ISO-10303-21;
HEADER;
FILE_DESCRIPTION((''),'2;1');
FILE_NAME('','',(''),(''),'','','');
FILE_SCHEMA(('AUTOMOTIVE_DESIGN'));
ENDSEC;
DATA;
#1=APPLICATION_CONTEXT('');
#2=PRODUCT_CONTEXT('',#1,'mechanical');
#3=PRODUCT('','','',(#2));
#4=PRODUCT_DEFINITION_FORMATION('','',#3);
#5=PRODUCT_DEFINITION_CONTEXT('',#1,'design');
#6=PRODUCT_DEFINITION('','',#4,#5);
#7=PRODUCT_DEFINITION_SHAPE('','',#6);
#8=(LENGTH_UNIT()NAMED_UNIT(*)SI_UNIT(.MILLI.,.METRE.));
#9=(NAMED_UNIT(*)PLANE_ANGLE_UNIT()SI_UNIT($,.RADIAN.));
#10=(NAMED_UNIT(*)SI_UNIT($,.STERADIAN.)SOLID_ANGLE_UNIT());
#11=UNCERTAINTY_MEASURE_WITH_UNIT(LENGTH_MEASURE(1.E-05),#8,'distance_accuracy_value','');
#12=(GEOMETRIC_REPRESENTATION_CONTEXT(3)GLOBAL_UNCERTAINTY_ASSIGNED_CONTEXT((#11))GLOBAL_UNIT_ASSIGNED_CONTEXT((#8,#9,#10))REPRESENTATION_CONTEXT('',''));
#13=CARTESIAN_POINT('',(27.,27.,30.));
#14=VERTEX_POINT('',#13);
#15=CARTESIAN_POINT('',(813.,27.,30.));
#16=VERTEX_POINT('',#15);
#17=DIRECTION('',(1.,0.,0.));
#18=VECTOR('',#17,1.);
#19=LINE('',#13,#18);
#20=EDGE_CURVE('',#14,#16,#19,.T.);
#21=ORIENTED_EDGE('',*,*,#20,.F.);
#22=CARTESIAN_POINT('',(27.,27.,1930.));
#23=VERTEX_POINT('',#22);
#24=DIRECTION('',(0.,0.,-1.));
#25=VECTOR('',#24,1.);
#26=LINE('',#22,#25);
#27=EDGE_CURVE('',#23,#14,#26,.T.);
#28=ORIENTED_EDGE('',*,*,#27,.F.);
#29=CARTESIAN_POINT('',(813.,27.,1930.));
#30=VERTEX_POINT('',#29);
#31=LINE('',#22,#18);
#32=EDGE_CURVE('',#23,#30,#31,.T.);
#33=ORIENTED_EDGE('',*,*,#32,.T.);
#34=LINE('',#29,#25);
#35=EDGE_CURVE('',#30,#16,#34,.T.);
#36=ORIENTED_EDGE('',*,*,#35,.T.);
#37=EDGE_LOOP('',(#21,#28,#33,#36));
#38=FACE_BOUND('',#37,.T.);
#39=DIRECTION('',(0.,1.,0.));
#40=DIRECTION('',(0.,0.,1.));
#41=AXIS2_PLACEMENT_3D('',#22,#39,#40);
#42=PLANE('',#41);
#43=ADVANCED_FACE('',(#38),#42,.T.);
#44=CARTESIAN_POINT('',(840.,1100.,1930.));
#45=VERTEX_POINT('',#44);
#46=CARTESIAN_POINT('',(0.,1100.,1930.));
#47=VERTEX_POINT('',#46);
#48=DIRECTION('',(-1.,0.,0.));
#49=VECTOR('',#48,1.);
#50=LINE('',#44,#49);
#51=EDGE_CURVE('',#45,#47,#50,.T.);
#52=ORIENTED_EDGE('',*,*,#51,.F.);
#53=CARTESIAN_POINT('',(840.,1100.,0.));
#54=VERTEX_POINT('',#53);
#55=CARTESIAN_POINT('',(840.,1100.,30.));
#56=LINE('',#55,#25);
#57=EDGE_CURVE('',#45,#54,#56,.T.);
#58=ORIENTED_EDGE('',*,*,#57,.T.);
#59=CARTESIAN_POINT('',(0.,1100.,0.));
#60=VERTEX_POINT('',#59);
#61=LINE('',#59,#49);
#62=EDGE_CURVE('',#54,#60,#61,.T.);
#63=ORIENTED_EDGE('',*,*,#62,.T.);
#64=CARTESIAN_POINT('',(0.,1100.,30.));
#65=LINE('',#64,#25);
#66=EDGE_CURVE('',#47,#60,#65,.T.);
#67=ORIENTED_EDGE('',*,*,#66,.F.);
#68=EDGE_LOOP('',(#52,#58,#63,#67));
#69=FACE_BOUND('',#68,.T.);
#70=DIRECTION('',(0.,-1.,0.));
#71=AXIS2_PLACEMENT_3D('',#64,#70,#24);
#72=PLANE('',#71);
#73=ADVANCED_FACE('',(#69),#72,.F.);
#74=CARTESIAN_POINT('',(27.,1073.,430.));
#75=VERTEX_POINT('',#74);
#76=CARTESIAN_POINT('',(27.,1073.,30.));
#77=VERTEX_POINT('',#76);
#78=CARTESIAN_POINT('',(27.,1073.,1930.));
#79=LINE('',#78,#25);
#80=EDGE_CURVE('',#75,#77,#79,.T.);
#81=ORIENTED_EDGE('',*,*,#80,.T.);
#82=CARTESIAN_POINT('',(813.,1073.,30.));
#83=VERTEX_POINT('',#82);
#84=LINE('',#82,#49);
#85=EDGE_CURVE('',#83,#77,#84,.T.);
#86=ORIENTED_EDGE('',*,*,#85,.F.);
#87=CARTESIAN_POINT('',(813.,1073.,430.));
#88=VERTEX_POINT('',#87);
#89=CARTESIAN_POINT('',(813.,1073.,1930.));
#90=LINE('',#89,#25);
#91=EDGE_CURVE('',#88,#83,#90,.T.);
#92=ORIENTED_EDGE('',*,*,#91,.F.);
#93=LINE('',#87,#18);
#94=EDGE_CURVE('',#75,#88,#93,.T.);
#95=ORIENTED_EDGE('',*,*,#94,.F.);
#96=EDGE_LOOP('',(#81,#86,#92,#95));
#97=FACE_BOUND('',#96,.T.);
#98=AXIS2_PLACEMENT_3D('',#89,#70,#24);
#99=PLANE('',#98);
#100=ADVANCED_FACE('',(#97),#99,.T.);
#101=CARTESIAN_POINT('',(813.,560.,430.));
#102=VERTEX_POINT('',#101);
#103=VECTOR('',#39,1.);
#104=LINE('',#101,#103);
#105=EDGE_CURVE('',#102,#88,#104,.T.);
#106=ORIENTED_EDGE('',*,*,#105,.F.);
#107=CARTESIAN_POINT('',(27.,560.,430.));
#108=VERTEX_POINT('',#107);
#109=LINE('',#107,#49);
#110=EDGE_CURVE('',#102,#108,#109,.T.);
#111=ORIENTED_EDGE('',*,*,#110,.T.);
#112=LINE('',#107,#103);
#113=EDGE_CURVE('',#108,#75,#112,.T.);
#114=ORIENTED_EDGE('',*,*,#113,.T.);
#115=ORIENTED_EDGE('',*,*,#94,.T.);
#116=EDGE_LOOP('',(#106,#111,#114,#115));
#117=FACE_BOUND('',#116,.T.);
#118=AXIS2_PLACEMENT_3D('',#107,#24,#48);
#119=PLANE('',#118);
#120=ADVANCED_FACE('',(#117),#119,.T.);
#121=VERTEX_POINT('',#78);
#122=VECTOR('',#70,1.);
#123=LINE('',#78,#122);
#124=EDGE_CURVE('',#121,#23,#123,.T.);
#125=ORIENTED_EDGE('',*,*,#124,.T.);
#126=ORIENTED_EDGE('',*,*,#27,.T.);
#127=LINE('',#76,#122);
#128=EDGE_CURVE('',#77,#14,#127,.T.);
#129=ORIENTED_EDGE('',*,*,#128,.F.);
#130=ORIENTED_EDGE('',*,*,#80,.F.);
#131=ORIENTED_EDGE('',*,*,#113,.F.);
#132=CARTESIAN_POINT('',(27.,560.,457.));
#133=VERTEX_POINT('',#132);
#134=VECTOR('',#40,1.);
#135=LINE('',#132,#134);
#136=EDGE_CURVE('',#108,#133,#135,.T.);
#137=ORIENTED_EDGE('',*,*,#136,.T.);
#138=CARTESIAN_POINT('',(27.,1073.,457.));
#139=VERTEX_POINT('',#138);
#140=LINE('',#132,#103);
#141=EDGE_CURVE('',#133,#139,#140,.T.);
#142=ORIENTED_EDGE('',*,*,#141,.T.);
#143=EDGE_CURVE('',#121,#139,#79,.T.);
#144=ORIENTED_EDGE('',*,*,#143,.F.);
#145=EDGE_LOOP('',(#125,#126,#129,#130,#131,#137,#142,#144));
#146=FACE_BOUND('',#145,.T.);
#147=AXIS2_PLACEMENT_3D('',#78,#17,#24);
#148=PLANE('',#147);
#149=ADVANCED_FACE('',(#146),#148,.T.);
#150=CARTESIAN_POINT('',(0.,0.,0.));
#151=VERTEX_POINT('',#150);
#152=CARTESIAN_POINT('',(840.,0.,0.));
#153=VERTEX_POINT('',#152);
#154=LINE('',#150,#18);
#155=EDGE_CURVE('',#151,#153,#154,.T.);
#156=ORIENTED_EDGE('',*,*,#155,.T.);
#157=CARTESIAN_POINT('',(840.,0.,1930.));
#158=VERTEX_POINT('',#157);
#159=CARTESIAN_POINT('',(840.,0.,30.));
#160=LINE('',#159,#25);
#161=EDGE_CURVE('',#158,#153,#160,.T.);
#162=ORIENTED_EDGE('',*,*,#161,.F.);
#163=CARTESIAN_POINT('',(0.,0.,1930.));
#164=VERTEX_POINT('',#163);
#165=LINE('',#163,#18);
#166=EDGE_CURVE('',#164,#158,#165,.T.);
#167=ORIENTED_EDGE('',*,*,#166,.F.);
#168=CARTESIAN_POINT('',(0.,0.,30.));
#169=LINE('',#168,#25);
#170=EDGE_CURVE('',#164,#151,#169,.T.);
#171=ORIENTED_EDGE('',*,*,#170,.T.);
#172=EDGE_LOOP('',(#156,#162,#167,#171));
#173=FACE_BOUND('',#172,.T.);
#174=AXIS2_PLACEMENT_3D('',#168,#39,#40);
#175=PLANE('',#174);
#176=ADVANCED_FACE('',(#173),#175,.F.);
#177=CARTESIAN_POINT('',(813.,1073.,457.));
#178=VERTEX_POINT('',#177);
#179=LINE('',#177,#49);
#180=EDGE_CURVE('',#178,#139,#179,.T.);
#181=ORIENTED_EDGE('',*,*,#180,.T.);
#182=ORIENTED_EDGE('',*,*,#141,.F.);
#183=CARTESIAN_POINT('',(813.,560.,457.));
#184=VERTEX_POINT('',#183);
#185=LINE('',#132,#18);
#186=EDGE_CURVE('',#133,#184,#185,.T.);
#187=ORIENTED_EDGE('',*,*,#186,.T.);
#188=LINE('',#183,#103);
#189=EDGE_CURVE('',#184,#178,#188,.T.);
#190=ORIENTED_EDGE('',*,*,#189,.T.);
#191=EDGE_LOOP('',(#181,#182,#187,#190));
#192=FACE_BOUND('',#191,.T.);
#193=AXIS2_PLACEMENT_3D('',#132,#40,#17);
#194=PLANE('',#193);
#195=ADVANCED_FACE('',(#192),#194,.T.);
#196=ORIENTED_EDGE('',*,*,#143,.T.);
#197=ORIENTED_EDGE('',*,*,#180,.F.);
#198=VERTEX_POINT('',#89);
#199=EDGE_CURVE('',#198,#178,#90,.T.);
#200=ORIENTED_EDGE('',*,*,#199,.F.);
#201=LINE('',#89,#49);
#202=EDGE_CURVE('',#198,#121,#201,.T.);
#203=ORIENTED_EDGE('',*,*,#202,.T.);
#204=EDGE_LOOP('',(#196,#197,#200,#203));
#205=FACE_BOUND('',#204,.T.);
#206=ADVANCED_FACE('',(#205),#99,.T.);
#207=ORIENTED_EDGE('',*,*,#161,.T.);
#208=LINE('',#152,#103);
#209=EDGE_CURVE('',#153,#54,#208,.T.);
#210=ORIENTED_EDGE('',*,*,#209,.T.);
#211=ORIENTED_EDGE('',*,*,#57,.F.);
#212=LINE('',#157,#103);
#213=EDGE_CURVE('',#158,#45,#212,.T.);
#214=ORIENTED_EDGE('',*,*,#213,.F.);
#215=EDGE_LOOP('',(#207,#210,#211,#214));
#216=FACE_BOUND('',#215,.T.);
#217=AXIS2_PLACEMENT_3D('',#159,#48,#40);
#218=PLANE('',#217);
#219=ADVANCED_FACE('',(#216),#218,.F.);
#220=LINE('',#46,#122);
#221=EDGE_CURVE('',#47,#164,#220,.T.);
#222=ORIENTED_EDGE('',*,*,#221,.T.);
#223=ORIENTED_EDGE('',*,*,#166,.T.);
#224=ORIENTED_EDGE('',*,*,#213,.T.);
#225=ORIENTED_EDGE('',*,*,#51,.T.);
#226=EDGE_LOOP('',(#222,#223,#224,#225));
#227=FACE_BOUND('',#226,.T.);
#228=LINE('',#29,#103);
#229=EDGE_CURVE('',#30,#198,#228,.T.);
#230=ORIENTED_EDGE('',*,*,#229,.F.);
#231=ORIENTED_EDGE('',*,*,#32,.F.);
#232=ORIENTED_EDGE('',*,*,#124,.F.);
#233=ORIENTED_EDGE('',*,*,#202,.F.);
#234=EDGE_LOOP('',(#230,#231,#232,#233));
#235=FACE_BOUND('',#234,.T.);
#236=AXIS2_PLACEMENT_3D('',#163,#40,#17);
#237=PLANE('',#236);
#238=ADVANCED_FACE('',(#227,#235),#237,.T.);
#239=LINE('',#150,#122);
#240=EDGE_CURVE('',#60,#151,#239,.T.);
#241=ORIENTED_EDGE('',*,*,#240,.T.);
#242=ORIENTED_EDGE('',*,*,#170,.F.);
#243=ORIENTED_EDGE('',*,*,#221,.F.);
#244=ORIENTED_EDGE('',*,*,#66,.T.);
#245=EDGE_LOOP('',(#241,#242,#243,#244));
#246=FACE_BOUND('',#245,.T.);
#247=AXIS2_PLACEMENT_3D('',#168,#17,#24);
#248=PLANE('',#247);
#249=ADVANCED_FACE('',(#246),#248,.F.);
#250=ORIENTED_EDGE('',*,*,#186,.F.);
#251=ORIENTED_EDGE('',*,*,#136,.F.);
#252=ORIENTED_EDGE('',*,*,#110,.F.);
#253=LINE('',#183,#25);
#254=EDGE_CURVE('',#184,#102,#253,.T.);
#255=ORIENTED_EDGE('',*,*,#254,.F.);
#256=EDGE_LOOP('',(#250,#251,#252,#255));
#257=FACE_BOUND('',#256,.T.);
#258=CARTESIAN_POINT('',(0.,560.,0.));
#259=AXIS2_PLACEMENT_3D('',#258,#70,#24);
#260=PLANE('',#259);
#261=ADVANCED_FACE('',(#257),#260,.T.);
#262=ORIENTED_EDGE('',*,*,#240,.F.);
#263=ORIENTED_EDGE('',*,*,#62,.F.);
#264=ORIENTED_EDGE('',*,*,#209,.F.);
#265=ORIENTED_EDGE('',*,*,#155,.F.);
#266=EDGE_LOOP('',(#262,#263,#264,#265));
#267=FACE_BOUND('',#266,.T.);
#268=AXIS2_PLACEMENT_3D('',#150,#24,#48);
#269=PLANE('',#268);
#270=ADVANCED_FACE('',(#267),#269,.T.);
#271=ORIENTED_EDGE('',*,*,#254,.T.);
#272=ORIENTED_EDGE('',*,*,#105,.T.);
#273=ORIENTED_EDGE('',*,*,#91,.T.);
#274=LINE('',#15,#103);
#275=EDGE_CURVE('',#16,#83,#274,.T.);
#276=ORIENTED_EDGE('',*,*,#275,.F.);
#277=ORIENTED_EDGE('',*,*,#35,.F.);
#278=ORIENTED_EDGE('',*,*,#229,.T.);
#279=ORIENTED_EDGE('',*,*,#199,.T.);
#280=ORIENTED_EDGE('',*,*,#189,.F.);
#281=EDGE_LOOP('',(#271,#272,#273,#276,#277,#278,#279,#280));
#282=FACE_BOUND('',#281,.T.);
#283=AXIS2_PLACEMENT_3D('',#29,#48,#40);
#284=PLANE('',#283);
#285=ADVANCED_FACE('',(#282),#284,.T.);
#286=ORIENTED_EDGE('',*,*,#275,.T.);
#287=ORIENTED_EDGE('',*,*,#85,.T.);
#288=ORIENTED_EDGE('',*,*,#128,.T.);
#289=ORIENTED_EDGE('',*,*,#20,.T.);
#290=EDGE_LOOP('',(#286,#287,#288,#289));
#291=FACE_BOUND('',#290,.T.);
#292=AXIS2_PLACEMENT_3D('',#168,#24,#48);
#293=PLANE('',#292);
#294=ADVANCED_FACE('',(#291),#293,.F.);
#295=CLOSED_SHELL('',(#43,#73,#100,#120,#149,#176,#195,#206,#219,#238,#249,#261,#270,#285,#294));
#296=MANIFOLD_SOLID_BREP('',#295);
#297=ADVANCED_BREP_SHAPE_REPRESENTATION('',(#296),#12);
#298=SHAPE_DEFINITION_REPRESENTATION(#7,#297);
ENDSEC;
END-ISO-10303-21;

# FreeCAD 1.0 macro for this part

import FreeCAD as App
import Part
import Sketcher

V = App.Vector
Q = App.Units.Quantity

doc = App.newDocument("Part")
body = doc.addObject("PartDesign::Body", "Body")

# Sketch on XY plane
sketch1 = body.newObject("Sketcher::SketchObject", "Sketch")
sketch1.AttachmentSupport = (doc.getObject("XY_Plane"), [""])
sketch1.MapMode = "FlatFace"
sketch1.addGeometry([
    Part.LineSegment(V(0, 1100, 0), V(0, 0, 0)),
    Part.LineSegment(V(0, 0, 0), V(840, 0, 0)),
    Part.LineSegment(V(840, 0, 0), V(840, 1100, 0)),
    Part.LineSegment(V(840, 1100, 0), V(0, 1100, 0)),
], False)
sketch1.addConstraint([
    Sketcher.Constraint("Coincident", 0, 2, 1, 1),
    Sketcher.Constraint("Coincident", 1, 2, 2, 1),
    Sketcher.Constraint("Coincident", 2, 2, 3, 1),
    Sketcher.Constraint("Coincident", 3, 2, 0, 1),
    Sketcher.Constraint("Vertical", 0),
    Sketcher.Constraint("Horizontal", 1),
    Sketcher.Constraint("Vertical", 2),
    Sketcher.Constraint("Horizontal", 3),
    Sketcher.Constraint("Coincident", 0, 2, -1, 1),
    Sketcher.Constraint("DistanceX", 1, 1, 1, 2, Q("840 mm")),
    Sketcher.Constraint("DistanceY", 0, 2, 0, 1, Q("1100 mm")),
])
pad1 = body.newObject("PartDesign::Pad", "Pad")
pad1.Profile = sketch1
pad1.Length = 30

# Sketch on XY plane
sketch2 = body.newObject("Sketcher::SketchObject", "Sketch001")
sketch2.AttachmentSupport = (doc.getObject("XY_Plane"), [""])
sketch2.MapMode = "FlatFace"
sketch2.AttachmentOffset = App.Placement(V(0, 0, 30), App.Rotation())
sketch2.addGeometry([
    Part.LineSegment(V(0, 1100, 0), V(0, 0, 0)),  # 0
    Part.LineSegment(V(0, 0, 0), V(840, 0, 0)),  # 1
    Part.LineSegment(V(840, 0, 0), V(840, 1100, 0)),  # 2
    Part.LineSegment(V(840, 1100, 0), V(0, 1100, 0)),  # 3
    Part.LineSegment(V(813, 27, 0), V(27, 27, 0)),  # 4
    Part.LineSegment(V(27, 27, 0), V(27, 1073, 0)),  # 5
    Part.LineSegment(V(27, 1073, 0), V(813, 1073, 0)),  # 6
    Part.LineSegment(V(813, 1073, 0), V(813, 27, 0)),  # 7
], False)
sketch2.addConstraint([
    Sketcher.Constraint("Coincident", 0, 2, 1, 1),
    Sketcher.Constraint("Coincident", 1, 2, 2, 1),
    Sketcher.Constraint("Coincident", 2, 2, 3, 1),
    Sketcher.Constraint("Coincident", 3, 2, 0, 1),
    Sketcher.Constraint("Coincident", 4, 2, 5, 1),
    Sketcher.Constraint("Coincident", 5, 2, 6, 1),
    Sketcher.Constraint("Coincident", 6, 2, 7, 1),
    Sketcher.Constraint("Coincident", 7, 2, 4, 1),
    Sketcher.Constraint("Vertical", 0),
    Sketcher.Constraint("Horizontal", 1),
    Sketcher.Constraint("Vertical", 2),
    Sketcher.Constraint("Horizontal", 3),
    Sketcher.Constraint("Horizontal", 4),
    Sketcher.Constraint("Vertical", 5),
    Sketcher.Constraint("Horizontal", 6),
    Sketcher.Constraint("Vertical", 7),
    Sketcher.Constraint("Coincident", 0, 2, -1, 1),
    Sketcher.Constraint("DistanceX", 1, 1, 1, 2, Q("840 mm")),
    Sketcher.Constraint("DistanceX", 4, 2, 4, 1, Q("786 mm")),
    Sketcher.Constraint("DistanceY", 0, 2, 0, 1, Q("1100 mm")),
    Sketcher.Constraint("DistanceY", 5, 1, 5, 2, Q("1046 mm")),
    Sketcher.Constraint("DistanceX", -1, 1, 4, 2, Q("27 mm")),
    Sketcher.Constraint("DistanceY", -1, 1, 4, 2, Q("27 mm")),
])
pad2 = body.newObject("PartDesign::Pad", "Pad001")
pad2.Profile = sketch2
pad2.Length = 1900

# Sketch on XZ plane
sketch3 = body.newObject("Sketcher::SketchObject", "Sketch002")
sketch3.AttachmentSupport = (doc.getObject("XZ_Plane"), [""])
sketch3.MapMode = "FlatFace"
sketch3.AttachmentOffset = App.Placement(V(0, 0, -1100), App.Rotation())
sketch3.addGeometry([
    Part.LineSegment(V(27, 430, 0), V(27, 457, 0)),
    Part.LineSegment(V(27, 457, 0), V(813, 457, 0)),
    Part.LineSegment(V(813, 457, 0), V(813, 430, 0)),
    Part.LineSegment(V(813, 430, 0), V(27, 430, 0)),
], False)
sketch3.addConstraint([
    Sketcher.Constraint("Coincident", 0, 2, 1, 1),
    Sketcher.Constraint("Coincident", 1, 2, 2, 1),
    Sketcher.Constraint("Coincident", 2, 2, 3, 1),
    Sketcher.Constraint("Coincident", 3, 2, 0, 1),
    Sketcher.Constraint("Vertical", 0),
    Sketcher.Constraint("Horizontal", 1),
    Sketcher.Constraint("Vertical", 2),
    Sketcher.Constraint("Horizontal", 3),
    Sketcher.Constraint("DistanceX", 1, 1, 1, 2, Q("786 mm")),
    Sketcher.Constraint("DistanceY", 0, 1, 0, 2, Q("27 mm")),
    Sketcher.Constraint("DistanceX", -1, 1, 0, 2, Q("27 mm")),
    Sketcher.Constraint("DistanceY", -1, 1, 0, 2, Q("457 mm")),
])
pad3 = body.newObject("PartDesign::Pad", "Pad002")
pad3.Profile = sketch3
pad3.Length = 540

doc.recompute()
